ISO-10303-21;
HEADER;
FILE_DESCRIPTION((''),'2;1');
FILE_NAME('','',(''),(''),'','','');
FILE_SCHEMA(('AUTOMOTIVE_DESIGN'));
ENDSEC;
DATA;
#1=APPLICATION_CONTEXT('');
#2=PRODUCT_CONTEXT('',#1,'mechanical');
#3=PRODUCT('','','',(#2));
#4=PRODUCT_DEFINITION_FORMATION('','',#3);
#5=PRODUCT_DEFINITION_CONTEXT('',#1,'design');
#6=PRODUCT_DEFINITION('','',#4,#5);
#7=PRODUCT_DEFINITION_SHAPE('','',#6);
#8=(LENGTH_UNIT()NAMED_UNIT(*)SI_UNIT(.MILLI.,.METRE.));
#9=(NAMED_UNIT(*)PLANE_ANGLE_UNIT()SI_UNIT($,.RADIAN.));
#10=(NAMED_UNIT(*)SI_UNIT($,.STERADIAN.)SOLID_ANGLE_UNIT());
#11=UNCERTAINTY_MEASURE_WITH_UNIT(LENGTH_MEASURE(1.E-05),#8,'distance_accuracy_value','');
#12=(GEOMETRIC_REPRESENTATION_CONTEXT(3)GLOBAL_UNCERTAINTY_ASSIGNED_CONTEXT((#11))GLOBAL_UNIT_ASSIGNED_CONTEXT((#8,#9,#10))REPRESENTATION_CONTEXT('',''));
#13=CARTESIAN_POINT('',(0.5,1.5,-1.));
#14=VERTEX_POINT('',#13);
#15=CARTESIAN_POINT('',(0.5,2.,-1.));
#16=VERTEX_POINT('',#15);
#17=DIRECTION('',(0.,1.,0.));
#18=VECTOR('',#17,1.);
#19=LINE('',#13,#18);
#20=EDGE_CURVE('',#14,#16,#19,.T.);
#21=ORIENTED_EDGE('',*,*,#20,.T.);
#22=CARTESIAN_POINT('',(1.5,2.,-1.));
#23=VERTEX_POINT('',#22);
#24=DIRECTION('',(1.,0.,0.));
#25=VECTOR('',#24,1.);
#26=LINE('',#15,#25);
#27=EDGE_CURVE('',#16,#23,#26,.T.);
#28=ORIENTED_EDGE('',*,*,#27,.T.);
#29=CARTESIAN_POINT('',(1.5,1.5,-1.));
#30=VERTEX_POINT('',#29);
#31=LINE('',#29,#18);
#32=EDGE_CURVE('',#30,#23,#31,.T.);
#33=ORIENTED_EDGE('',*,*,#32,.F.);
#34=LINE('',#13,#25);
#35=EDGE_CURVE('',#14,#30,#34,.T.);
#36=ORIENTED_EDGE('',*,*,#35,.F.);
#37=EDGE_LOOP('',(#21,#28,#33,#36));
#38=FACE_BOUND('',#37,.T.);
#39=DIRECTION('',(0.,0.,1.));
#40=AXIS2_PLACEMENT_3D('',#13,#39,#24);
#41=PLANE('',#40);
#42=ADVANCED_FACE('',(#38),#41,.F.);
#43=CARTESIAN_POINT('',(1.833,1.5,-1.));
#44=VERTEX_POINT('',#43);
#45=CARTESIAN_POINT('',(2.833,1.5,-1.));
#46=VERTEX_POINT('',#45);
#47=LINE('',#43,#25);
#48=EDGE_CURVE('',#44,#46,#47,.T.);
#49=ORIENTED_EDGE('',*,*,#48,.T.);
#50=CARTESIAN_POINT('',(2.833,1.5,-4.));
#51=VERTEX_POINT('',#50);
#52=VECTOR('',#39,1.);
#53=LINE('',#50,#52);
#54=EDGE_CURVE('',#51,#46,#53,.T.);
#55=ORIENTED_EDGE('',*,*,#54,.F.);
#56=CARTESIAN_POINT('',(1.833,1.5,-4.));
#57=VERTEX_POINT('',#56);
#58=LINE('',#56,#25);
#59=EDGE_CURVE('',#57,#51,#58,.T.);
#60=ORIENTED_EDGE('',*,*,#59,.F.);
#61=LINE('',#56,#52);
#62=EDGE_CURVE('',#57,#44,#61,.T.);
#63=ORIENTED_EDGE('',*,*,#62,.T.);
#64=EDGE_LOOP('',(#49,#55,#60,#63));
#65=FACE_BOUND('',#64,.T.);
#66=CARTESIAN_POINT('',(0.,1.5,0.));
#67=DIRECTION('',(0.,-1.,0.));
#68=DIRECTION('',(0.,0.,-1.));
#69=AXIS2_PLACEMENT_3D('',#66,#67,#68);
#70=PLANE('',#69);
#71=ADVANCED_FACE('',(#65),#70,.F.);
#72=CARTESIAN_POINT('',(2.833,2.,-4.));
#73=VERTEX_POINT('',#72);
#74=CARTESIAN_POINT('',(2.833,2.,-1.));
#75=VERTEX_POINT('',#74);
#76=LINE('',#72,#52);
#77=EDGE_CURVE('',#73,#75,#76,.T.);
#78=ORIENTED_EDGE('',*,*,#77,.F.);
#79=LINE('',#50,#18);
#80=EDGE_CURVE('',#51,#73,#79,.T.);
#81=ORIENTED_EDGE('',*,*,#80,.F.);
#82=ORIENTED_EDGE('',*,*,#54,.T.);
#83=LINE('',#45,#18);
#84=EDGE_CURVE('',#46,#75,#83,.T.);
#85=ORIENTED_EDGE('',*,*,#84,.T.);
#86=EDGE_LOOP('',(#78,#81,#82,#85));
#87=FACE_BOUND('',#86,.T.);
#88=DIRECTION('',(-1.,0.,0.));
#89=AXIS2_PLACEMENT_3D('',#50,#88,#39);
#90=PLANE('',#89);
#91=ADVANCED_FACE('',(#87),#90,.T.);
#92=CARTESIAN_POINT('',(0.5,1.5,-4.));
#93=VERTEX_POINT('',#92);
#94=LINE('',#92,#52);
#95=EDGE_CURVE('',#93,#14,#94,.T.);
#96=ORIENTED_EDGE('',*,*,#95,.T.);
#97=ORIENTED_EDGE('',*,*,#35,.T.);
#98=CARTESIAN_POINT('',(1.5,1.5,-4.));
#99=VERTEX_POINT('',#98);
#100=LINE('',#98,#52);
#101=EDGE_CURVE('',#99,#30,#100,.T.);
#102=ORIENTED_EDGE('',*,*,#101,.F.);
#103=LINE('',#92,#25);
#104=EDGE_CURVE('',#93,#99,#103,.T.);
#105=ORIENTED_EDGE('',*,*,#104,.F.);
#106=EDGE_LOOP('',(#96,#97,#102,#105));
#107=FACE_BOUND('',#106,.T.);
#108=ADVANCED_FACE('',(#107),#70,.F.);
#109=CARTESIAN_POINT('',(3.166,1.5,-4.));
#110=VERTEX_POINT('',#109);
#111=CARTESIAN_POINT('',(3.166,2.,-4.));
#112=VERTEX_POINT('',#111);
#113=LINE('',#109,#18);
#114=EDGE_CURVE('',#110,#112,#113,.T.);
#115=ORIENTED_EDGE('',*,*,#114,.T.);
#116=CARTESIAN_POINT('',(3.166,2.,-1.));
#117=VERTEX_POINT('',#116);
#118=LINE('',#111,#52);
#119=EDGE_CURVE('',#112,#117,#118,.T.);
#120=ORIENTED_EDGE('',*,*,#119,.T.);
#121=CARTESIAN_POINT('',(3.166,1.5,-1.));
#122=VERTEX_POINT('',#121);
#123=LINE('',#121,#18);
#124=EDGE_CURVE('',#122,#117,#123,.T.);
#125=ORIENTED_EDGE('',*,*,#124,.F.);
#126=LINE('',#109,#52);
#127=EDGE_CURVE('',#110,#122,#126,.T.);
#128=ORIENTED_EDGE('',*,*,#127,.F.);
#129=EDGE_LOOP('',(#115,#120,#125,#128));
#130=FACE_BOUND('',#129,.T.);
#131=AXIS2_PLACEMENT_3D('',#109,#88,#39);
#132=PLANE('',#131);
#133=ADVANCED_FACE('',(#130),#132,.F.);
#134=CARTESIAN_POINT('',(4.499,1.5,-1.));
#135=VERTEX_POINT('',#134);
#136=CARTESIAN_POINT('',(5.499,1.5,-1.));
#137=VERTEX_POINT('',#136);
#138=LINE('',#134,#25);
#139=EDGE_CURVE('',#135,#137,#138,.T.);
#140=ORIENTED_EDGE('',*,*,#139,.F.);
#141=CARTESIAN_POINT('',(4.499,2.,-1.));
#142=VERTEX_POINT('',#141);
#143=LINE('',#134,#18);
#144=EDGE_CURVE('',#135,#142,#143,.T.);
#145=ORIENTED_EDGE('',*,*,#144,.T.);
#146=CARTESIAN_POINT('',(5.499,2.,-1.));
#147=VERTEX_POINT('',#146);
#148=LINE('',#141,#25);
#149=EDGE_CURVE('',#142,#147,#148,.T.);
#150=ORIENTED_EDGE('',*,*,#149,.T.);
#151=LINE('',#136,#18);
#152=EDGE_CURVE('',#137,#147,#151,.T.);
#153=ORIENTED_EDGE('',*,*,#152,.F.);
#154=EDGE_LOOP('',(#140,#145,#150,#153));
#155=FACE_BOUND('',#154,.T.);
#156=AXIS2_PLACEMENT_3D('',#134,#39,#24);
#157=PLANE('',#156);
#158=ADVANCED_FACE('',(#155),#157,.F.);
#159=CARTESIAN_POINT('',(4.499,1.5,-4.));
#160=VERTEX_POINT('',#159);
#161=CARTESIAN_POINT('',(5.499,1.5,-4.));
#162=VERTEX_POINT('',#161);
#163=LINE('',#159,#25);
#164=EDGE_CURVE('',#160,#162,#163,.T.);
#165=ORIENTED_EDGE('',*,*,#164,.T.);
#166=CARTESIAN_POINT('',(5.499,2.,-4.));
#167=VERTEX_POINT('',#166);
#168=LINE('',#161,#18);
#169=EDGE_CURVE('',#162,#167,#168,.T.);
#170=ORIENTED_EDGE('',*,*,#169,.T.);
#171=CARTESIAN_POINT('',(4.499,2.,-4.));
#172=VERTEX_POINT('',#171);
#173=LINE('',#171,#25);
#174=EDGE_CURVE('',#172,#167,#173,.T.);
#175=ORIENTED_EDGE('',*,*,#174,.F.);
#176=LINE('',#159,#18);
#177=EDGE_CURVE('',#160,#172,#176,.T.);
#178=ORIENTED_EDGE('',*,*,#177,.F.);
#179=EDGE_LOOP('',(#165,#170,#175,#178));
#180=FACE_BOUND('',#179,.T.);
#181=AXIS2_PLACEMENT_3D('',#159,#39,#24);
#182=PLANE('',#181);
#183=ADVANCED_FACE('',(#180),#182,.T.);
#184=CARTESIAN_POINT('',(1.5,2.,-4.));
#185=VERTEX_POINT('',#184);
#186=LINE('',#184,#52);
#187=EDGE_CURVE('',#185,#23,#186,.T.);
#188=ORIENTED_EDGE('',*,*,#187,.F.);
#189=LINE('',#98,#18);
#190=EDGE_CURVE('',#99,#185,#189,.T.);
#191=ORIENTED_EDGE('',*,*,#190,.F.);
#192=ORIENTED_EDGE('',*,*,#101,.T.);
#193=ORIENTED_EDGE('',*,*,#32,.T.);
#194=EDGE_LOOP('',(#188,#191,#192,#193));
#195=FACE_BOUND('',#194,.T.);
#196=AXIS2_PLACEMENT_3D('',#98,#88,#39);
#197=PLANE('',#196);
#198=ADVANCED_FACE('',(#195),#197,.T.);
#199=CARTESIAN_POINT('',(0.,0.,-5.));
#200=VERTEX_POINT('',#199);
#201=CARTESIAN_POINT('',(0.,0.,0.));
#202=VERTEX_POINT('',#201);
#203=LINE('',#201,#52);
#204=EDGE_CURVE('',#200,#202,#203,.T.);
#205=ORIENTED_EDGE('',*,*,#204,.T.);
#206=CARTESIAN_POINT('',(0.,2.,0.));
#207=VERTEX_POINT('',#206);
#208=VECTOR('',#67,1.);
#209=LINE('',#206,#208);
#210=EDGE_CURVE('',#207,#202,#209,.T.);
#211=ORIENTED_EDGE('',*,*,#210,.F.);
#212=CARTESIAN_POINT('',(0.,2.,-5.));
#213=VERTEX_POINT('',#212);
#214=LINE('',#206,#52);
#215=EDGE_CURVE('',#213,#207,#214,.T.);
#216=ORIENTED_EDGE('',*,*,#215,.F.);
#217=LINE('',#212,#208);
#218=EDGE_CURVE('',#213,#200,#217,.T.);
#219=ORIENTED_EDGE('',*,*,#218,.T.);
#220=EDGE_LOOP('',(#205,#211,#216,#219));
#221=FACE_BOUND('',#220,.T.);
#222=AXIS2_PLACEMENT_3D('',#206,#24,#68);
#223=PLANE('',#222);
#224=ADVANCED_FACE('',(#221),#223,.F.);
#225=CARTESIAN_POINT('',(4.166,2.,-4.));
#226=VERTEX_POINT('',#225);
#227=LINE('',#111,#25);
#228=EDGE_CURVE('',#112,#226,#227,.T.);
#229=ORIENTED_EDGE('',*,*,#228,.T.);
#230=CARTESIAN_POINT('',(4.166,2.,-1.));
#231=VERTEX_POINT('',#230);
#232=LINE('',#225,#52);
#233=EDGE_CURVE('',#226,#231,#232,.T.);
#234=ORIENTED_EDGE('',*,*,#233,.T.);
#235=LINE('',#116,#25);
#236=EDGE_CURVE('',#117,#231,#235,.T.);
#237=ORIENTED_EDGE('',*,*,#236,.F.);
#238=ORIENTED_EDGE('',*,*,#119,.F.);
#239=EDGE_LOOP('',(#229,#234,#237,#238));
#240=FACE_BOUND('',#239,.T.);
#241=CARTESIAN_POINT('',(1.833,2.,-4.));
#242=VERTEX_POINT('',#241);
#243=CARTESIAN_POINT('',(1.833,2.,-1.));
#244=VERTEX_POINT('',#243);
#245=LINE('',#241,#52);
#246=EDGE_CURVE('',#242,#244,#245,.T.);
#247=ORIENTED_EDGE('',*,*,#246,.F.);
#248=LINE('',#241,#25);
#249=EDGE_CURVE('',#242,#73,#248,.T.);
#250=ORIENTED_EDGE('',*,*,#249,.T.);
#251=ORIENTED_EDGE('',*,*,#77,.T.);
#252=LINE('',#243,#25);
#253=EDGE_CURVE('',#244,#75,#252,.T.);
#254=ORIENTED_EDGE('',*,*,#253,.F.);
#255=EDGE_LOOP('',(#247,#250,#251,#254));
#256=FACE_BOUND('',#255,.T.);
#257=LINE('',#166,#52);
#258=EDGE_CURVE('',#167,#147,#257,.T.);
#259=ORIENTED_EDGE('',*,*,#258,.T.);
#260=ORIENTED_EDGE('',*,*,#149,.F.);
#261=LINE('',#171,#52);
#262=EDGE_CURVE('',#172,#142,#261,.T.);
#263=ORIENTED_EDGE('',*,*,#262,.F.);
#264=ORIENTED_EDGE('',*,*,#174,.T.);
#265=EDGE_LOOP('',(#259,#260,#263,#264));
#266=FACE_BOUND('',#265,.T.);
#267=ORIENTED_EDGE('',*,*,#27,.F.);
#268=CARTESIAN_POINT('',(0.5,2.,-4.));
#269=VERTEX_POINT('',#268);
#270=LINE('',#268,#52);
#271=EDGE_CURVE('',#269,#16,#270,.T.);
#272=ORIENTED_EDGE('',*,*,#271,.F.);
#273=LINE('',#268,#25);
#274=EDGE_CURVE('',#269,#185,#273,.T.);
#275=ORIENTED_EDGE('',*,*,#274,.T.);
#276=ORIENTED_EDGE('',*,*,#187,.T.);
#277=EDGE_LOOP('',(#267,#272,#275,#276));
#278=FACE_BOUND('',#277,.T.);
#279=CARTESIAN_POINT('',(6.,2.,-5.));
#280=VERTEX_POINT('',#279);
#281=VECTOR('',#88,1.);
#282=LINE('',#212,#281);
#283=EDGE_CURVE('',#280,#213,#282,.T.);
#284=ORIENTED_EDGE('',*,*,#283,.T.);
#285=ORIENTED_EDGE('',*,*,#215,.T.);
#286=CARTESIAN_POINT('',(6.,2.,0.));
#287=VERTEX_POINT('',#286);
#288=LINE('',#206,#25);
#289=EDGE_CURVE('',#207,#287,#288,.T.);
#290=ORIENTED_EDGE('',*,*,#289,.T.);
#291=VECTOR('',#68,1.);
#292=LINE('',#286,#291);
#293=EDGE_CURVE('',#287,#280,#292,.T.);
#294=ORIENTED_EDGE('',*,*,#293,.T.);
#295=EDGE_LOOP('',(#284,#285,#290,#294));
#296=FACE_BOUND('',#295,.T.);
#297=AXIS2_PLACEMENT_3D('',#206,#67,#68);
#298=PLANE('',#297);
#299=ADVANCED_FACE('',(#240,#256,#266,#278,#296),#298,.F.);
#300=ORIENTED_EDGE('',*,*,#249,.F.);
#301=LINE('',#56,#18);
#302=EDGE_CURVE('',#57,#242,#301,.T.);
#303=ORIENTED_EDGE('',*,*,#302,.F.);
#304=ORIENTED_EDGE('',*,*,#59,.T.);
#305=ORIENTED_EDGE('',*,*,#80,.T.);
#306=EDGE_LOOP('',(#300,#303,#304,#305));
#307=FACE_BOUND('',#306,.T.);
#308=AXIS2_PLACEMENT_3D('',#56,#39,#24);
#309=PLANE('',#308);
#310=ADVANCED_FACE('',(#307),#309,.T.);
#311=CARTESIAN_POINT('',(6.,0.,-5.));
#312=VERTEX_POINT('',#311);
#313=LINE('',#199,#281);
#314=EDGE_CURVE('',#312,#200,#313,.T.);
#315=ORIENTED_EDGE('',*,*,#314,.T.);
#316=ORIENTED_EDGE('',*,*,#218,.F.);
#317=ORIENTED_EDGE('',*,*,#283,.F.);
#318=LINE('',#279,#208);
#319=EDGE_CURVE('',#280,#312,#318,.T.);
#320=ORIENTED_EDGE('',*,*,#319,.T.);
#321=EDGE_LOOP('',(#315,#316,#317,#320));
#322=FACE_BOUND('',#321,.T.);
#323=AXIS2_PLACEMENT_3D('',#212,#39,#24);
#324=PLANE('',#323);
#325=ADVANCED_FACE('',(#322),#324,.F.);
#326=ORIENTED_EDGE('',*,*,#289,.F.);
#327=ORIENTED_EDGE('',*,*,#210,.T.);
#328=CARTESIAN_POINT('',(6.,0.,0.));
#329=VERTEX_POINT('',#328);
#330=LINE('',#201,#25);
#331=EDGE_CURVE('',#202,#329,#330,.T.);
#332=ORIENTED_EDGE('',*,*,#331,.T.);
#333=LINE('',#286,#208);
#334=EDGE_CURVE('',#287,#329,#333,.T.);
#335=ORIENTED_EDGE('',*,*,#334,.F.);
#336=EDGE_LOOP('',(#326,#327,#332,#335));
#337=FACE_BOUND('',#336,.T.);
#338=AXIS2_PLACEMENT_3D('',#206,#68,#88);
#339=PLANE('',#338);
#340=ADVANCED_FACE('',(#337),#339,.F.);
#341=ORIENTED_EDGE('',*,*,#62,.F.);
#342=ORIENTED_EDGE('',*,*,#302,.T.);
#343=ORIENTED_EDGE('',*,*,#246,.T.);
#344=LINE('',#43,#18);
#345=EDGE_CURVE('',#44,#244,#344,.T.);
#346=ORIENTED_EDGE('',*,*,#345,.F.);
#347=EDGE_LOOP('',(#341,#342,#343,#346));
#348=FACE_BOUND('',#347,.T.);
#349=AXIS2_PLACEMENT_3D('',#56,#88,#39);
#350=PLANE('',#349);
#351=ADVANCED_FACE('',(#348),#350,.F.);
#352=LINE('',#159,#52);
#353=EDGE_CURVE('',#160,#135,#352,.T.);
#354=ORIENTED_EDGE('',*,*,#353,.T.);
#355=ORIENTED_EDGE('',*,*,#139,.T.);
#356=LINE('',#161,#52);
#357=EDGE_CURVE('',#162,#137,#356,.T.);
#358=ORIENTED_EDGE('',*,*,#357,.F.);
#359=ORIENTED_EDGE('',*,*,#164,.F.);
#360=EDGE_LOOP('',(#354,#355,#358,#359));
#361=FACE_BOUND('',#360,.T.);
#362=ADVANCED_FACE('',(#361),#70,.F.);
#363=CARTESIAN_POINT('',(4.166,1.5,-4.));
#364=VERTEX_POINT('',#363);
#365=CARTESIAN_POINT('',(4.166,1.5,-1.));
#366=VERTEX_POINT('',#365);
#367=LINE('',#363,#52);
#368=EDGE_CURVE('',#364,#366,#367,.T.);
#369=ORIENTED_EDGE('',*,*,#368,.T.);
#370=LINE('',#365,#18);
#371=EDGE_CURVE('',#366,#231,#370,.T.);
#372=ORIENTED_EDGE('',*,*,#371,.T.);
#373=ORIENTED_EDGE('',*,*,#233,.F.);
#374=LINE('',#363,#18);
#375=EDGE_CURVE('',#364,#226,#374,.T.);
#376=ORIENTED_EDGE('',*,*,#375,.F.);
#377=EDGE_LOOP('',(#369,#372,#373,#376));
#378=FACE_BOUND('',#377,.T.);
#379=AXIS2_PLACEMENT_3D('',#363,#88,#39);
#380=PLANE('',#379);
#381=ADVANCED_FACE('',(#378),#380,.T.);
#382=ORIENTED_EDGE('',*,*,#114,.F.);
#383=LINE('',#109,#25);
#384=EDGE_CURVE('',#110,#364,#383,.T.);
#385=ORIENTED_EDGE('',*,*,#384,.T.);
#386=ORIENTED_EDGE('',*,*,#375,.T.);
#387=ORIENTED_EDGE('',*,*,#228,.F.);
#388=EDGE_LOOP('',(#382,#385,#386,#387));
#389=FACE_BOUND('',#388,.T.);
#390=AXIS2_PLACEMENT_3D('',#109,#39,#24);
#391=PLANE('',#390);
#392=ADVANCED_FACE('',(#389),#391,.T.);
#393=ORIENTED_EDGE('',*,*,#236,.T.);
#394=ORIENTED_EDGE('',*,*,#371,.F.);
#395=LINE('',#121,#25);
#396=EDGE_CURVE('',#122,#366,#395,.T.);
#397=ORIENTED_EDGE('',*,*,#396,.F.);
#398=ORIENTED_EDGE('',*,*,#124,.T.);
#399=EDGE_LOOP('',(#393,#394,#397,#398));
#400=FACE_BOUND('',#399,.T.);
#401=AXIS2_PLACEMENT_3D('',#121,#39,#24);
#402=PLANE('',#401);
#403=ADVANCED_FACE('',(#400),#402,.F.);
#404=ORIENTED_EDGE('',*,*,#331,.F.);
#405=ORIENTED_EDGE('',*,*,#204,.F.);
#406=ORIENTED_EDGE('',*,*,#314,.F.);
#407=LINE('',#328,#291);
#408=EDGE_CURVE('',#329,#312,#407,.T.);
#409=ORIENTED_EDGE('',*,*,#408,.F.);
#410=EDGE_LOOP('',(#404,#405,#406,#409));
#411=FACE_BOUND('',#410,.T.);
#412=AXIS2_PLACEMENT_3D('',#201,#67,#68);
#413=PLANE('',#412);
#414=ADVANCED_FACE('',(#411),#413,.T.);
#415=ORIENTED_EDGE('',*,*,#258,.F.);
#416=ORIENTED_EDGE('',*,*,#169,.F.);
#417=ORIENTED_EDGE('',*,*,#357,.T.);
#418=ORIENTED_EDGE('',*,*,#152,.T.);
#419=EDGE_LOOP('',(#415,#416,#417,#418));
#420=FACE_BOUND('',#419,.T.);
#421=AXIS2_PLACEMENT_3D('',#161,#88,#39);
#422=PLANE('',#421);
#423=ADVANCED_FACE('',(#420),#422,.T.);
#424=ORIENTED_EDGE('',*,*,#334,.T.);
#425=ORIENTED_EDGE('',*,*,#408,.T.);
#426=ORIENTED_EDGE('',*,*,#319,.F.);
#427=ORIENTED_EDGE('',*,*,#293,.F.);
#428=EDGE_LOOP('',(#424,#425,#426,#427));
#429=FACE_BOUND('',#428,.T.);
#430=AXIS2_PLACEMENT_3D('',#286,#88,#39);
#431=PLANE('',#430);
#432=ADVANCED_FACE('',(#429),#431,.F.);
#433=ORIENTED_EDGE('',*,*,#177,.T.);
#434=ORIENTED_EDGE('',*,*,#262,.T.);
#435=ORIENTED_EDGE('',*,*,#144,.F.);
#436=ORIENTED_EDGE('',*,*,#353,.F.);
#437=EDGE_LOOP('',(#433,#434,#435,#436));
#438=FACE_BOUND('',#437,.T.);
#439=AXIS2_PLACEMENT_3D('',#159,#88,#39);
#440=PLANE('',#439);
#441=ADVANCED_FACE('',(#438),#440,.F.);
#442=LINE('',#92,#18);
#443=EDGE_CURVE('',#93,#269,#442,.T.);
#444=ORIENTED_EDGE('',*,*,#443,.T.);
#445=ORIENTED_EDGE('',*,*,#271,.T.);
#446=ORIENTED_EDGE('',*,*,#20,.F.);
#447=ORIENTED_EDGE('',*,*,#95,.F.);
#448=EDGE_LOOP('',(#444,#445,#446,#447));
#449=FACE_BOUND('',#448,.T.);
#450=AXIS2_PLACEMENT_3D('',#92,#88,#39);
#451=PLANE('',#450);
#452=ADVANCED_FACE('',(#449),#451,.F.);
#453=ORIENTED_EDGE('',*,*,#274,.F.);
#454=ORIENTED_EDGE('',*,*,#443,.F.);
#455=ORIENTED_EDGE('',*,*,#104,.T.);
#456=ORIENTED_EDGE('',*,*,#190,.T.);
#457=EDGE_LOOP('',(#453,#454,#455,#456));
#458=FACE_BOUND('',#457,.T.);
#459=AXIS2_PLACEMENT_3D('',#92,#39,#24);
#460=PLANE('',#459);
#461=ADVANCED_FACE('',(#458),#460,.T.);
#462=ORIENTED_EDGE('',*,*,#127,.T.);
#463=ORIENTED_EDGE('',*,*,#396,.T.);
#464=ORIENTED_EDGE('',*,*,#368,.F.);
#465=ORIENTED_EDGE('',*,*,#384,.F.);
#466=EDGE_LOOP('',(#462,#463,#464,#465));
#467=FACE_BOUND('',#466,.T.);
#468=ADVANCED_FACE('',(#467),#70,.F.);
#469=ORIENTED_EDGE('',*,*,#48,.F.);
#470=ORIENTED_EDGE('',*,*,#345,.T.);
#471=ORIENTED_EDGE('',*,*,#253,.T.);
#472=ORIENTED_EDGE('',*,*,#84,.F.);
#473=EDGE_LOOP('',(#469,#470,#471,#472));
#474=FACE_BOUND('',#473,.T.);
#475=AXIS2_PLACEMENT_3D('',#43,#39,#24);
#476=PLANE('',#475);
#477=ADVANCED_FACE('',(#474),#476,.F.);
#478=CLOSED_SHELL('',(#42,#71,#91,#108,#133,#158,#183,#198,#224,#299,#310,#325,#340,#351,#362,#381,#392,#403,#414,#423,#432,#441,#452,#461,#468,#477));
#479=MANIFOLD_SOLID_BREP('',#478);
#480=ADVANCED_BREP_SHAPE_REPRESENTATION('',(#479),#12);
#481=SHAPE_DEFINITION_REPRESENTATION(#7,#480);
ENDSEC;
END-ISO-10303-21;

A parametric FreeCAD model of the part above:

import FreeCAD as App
import Part
import Sketcher
Q = App.Units.Quantity


def add_polygon(sketch, points):
    """Adds a closed chain of lines whose ends are joined by coincident constraints."""
    first, n = sketch.GeometryCount, len(points)
    for a, b in zip(points, points[1:] + points[:1]):
        sketch.addGeometry(Part.LineSegment(App.Vector(*a, 0), App.Vector(*b, 0)), False)
    for i in range(n):
        sketch.addConstraint(Sketcher.Constraint("Coincident", first + i, 2, first + (i + 1) % n, 1))

doc = App.newDocument("Part")
params = doc.addObject("Spreadsheet::Sheet", "Params")
for row, (alias, value) in enumerate([
    ("sketch1_width", "6 mm"),
    ("sketch1_height", "5 mm"),
    ("pad1_length", "2 mm"),
    ("sketch2_width", "1 mm"),
    ("sketch2_height", "3 mm"),
    ("pocket1_length", "0.5 mm"),
], start=1):
    params.set(f"A{row}", alias)
    params.set(f"B{row}", "=" + value)
    params.setAlias(f"B{row}", alias)

body = doc.addObject("PartDesign::Body", "Body")

# Sketch on XZ plane
sketch1 = body.newObject("Sketcher::SketchObject", "Sketch")
sketch1.AttachmentSupport = (doc.getObject("XZ_Plane"), [""])
sketch1.MapMode = "FlatFace"
add_polygon(sketch1, [(0, -5), (0, 0), (6, 0), (6, -5)])  # lines 0-3
sketch1.addConstraint([
    Sketcher.Constraint("Vertical", 0),
    Sketcher.Constraint("Horizontal", 1),
    Sketcher.Constraint("Vertical", 2),
    Sketcher.Constraint("Horizontal", 3),
    Sketcher.Constraint("Coincident", 0, 2, -1, 1),
    Sketcher.Constraint("DistanceX", 1, 1, 1, 2, Q("6 mm")),
    Sketcher.Constraint("DistanceY", 0, 1, 0, 2, Q("5 mm")),
])
sketch1.setExpression("Constraints[9]", "Params.sketch1_width")
sketch1.setExpression("Constraints[10]", "Params.sketch1_height")
pad1 = body.newObject("PartDesign::Pad", "Pad")
pad1.Profile = sketch1
pad1.setExpression("Length", "Params.pad1_length")
pad1.Reversed = True

# Sketch on XZ plane
sketch2 = body.newObject("Sketcher::SketchObject", "Sketch001")
sketch2.AttachmentSupport = (doc.getObject("XZ_Plane"), [""])
sketch2.MapMode = "FlatFace"
sketch2.AttachmentOffset = App.Placement(App.Vector(0, 0, -2), App.Rotation())
add_polygon(sketch2, [(0.5, -4), (0.5, -1), (1.5, -1), (1.5, -4)])  # lines 0-3
add_polygon(sketch2, [(1.8, -4), (1.8, -1), (2.8, -1), (2.8, -4)])  # lines 4-7
add_polygon(sketch2, [(3.2, -4), (3.2, -1), (4.2, -1), (4.2, -4)])  # lines 8-11
add_polygon(sketch2, [(4.5, -4), (4.5, -1), (5.5, -1), (5.5, -4)])  # lines 12-15
sketch2.addConstraint([
    Sketcher.Constraint("Vertical", 0),
    Sketcher.Constraint("Horizontal", 1),
    Sketcher.Constraint("Vertical", 2),
    Sketcher.Constraint("Horizontal", 3),
    Sketcher.Constraint("Vertical", 4),
    Sketcher.Constraint("Horizontal", 5),
    Sketcher.Constraint("Vertical", 6),
    Sketcher.Constraint("Horizontal", 7),
    Sketcher.Constraint("Vertical", 8),
    Sketcher.Constraint("Horizontal", 9),
    Sketcher.Constraint("Vertical", 10),
    Sketcher.Constraint("Horizontal", 11),
    Sketcher.Constraint("Vertical", 12),
    Sketcher.Constraint("Horizontal", 13),
    Sketcher.Constraint("Vertical", 14),
    Sketcher.Constraint("Horizontal", 15),
    Sketcher.Constraint("Horizontal", 1, 2, 4, 2),
    Sketcher.Constraint("Horizontal", 3, 2, 6, 2),
    Sketcher.Constraint("Horizontal", 5, 2, 8, 2),
    Sketcher.Constraint("Horizontal", 7, 2, 10, 2),
    Sketcher.Constraint("Horizontal", 9, 2, 12, 2),
    Sketcher.Constraint("Horizontal", 11, 2, 14, 2),
    Sketcher.Constraint("Equal", 3, 5),
    Sketcher.Constraint("Equal", 7, 9),
    Sketcher.Constraint("Equal", 11, 13),
    Sketcher.Constraint("DistanceX", 1, 1, 1, 2, Q("1 mm")),
    Sketcher.Constraint("DistanceY", 0, 1, 0, 2, Q("3 mm")),
    Sketcher.Constraint("DistanceY", 0, 2, -1, 1, Q("1 mm")),
    Sketcher.Constraint("DistanceX", -1, 1, 0, 2, Q("0.5 mm")),
    Sketcher.Constraint("DistanceX", -1, 1, 4, 2, Q("1.833 mm")),
    Sketcher.Constraint("DistanceX", -1, 1, 8, 2, Q("3.166 mm")),
    Sketcher.Constraint("DistanceX", -1, 1, 12, 2, Q("4.499 mm")),
])
sketch2.setExpression("Constraints[41]", "Params.sketch2_width")
sketch2.setExpression("Constraints[42]", "Params.sketch2_height")
pocket1 = body.newObject("PartDesign::Pocket", "Pocket")
pocket1.Profile = sketch2
pocket1.setExpression("Length", "Params.pocket1_length")
pocket1.Reversed = True

doc.recompute()
